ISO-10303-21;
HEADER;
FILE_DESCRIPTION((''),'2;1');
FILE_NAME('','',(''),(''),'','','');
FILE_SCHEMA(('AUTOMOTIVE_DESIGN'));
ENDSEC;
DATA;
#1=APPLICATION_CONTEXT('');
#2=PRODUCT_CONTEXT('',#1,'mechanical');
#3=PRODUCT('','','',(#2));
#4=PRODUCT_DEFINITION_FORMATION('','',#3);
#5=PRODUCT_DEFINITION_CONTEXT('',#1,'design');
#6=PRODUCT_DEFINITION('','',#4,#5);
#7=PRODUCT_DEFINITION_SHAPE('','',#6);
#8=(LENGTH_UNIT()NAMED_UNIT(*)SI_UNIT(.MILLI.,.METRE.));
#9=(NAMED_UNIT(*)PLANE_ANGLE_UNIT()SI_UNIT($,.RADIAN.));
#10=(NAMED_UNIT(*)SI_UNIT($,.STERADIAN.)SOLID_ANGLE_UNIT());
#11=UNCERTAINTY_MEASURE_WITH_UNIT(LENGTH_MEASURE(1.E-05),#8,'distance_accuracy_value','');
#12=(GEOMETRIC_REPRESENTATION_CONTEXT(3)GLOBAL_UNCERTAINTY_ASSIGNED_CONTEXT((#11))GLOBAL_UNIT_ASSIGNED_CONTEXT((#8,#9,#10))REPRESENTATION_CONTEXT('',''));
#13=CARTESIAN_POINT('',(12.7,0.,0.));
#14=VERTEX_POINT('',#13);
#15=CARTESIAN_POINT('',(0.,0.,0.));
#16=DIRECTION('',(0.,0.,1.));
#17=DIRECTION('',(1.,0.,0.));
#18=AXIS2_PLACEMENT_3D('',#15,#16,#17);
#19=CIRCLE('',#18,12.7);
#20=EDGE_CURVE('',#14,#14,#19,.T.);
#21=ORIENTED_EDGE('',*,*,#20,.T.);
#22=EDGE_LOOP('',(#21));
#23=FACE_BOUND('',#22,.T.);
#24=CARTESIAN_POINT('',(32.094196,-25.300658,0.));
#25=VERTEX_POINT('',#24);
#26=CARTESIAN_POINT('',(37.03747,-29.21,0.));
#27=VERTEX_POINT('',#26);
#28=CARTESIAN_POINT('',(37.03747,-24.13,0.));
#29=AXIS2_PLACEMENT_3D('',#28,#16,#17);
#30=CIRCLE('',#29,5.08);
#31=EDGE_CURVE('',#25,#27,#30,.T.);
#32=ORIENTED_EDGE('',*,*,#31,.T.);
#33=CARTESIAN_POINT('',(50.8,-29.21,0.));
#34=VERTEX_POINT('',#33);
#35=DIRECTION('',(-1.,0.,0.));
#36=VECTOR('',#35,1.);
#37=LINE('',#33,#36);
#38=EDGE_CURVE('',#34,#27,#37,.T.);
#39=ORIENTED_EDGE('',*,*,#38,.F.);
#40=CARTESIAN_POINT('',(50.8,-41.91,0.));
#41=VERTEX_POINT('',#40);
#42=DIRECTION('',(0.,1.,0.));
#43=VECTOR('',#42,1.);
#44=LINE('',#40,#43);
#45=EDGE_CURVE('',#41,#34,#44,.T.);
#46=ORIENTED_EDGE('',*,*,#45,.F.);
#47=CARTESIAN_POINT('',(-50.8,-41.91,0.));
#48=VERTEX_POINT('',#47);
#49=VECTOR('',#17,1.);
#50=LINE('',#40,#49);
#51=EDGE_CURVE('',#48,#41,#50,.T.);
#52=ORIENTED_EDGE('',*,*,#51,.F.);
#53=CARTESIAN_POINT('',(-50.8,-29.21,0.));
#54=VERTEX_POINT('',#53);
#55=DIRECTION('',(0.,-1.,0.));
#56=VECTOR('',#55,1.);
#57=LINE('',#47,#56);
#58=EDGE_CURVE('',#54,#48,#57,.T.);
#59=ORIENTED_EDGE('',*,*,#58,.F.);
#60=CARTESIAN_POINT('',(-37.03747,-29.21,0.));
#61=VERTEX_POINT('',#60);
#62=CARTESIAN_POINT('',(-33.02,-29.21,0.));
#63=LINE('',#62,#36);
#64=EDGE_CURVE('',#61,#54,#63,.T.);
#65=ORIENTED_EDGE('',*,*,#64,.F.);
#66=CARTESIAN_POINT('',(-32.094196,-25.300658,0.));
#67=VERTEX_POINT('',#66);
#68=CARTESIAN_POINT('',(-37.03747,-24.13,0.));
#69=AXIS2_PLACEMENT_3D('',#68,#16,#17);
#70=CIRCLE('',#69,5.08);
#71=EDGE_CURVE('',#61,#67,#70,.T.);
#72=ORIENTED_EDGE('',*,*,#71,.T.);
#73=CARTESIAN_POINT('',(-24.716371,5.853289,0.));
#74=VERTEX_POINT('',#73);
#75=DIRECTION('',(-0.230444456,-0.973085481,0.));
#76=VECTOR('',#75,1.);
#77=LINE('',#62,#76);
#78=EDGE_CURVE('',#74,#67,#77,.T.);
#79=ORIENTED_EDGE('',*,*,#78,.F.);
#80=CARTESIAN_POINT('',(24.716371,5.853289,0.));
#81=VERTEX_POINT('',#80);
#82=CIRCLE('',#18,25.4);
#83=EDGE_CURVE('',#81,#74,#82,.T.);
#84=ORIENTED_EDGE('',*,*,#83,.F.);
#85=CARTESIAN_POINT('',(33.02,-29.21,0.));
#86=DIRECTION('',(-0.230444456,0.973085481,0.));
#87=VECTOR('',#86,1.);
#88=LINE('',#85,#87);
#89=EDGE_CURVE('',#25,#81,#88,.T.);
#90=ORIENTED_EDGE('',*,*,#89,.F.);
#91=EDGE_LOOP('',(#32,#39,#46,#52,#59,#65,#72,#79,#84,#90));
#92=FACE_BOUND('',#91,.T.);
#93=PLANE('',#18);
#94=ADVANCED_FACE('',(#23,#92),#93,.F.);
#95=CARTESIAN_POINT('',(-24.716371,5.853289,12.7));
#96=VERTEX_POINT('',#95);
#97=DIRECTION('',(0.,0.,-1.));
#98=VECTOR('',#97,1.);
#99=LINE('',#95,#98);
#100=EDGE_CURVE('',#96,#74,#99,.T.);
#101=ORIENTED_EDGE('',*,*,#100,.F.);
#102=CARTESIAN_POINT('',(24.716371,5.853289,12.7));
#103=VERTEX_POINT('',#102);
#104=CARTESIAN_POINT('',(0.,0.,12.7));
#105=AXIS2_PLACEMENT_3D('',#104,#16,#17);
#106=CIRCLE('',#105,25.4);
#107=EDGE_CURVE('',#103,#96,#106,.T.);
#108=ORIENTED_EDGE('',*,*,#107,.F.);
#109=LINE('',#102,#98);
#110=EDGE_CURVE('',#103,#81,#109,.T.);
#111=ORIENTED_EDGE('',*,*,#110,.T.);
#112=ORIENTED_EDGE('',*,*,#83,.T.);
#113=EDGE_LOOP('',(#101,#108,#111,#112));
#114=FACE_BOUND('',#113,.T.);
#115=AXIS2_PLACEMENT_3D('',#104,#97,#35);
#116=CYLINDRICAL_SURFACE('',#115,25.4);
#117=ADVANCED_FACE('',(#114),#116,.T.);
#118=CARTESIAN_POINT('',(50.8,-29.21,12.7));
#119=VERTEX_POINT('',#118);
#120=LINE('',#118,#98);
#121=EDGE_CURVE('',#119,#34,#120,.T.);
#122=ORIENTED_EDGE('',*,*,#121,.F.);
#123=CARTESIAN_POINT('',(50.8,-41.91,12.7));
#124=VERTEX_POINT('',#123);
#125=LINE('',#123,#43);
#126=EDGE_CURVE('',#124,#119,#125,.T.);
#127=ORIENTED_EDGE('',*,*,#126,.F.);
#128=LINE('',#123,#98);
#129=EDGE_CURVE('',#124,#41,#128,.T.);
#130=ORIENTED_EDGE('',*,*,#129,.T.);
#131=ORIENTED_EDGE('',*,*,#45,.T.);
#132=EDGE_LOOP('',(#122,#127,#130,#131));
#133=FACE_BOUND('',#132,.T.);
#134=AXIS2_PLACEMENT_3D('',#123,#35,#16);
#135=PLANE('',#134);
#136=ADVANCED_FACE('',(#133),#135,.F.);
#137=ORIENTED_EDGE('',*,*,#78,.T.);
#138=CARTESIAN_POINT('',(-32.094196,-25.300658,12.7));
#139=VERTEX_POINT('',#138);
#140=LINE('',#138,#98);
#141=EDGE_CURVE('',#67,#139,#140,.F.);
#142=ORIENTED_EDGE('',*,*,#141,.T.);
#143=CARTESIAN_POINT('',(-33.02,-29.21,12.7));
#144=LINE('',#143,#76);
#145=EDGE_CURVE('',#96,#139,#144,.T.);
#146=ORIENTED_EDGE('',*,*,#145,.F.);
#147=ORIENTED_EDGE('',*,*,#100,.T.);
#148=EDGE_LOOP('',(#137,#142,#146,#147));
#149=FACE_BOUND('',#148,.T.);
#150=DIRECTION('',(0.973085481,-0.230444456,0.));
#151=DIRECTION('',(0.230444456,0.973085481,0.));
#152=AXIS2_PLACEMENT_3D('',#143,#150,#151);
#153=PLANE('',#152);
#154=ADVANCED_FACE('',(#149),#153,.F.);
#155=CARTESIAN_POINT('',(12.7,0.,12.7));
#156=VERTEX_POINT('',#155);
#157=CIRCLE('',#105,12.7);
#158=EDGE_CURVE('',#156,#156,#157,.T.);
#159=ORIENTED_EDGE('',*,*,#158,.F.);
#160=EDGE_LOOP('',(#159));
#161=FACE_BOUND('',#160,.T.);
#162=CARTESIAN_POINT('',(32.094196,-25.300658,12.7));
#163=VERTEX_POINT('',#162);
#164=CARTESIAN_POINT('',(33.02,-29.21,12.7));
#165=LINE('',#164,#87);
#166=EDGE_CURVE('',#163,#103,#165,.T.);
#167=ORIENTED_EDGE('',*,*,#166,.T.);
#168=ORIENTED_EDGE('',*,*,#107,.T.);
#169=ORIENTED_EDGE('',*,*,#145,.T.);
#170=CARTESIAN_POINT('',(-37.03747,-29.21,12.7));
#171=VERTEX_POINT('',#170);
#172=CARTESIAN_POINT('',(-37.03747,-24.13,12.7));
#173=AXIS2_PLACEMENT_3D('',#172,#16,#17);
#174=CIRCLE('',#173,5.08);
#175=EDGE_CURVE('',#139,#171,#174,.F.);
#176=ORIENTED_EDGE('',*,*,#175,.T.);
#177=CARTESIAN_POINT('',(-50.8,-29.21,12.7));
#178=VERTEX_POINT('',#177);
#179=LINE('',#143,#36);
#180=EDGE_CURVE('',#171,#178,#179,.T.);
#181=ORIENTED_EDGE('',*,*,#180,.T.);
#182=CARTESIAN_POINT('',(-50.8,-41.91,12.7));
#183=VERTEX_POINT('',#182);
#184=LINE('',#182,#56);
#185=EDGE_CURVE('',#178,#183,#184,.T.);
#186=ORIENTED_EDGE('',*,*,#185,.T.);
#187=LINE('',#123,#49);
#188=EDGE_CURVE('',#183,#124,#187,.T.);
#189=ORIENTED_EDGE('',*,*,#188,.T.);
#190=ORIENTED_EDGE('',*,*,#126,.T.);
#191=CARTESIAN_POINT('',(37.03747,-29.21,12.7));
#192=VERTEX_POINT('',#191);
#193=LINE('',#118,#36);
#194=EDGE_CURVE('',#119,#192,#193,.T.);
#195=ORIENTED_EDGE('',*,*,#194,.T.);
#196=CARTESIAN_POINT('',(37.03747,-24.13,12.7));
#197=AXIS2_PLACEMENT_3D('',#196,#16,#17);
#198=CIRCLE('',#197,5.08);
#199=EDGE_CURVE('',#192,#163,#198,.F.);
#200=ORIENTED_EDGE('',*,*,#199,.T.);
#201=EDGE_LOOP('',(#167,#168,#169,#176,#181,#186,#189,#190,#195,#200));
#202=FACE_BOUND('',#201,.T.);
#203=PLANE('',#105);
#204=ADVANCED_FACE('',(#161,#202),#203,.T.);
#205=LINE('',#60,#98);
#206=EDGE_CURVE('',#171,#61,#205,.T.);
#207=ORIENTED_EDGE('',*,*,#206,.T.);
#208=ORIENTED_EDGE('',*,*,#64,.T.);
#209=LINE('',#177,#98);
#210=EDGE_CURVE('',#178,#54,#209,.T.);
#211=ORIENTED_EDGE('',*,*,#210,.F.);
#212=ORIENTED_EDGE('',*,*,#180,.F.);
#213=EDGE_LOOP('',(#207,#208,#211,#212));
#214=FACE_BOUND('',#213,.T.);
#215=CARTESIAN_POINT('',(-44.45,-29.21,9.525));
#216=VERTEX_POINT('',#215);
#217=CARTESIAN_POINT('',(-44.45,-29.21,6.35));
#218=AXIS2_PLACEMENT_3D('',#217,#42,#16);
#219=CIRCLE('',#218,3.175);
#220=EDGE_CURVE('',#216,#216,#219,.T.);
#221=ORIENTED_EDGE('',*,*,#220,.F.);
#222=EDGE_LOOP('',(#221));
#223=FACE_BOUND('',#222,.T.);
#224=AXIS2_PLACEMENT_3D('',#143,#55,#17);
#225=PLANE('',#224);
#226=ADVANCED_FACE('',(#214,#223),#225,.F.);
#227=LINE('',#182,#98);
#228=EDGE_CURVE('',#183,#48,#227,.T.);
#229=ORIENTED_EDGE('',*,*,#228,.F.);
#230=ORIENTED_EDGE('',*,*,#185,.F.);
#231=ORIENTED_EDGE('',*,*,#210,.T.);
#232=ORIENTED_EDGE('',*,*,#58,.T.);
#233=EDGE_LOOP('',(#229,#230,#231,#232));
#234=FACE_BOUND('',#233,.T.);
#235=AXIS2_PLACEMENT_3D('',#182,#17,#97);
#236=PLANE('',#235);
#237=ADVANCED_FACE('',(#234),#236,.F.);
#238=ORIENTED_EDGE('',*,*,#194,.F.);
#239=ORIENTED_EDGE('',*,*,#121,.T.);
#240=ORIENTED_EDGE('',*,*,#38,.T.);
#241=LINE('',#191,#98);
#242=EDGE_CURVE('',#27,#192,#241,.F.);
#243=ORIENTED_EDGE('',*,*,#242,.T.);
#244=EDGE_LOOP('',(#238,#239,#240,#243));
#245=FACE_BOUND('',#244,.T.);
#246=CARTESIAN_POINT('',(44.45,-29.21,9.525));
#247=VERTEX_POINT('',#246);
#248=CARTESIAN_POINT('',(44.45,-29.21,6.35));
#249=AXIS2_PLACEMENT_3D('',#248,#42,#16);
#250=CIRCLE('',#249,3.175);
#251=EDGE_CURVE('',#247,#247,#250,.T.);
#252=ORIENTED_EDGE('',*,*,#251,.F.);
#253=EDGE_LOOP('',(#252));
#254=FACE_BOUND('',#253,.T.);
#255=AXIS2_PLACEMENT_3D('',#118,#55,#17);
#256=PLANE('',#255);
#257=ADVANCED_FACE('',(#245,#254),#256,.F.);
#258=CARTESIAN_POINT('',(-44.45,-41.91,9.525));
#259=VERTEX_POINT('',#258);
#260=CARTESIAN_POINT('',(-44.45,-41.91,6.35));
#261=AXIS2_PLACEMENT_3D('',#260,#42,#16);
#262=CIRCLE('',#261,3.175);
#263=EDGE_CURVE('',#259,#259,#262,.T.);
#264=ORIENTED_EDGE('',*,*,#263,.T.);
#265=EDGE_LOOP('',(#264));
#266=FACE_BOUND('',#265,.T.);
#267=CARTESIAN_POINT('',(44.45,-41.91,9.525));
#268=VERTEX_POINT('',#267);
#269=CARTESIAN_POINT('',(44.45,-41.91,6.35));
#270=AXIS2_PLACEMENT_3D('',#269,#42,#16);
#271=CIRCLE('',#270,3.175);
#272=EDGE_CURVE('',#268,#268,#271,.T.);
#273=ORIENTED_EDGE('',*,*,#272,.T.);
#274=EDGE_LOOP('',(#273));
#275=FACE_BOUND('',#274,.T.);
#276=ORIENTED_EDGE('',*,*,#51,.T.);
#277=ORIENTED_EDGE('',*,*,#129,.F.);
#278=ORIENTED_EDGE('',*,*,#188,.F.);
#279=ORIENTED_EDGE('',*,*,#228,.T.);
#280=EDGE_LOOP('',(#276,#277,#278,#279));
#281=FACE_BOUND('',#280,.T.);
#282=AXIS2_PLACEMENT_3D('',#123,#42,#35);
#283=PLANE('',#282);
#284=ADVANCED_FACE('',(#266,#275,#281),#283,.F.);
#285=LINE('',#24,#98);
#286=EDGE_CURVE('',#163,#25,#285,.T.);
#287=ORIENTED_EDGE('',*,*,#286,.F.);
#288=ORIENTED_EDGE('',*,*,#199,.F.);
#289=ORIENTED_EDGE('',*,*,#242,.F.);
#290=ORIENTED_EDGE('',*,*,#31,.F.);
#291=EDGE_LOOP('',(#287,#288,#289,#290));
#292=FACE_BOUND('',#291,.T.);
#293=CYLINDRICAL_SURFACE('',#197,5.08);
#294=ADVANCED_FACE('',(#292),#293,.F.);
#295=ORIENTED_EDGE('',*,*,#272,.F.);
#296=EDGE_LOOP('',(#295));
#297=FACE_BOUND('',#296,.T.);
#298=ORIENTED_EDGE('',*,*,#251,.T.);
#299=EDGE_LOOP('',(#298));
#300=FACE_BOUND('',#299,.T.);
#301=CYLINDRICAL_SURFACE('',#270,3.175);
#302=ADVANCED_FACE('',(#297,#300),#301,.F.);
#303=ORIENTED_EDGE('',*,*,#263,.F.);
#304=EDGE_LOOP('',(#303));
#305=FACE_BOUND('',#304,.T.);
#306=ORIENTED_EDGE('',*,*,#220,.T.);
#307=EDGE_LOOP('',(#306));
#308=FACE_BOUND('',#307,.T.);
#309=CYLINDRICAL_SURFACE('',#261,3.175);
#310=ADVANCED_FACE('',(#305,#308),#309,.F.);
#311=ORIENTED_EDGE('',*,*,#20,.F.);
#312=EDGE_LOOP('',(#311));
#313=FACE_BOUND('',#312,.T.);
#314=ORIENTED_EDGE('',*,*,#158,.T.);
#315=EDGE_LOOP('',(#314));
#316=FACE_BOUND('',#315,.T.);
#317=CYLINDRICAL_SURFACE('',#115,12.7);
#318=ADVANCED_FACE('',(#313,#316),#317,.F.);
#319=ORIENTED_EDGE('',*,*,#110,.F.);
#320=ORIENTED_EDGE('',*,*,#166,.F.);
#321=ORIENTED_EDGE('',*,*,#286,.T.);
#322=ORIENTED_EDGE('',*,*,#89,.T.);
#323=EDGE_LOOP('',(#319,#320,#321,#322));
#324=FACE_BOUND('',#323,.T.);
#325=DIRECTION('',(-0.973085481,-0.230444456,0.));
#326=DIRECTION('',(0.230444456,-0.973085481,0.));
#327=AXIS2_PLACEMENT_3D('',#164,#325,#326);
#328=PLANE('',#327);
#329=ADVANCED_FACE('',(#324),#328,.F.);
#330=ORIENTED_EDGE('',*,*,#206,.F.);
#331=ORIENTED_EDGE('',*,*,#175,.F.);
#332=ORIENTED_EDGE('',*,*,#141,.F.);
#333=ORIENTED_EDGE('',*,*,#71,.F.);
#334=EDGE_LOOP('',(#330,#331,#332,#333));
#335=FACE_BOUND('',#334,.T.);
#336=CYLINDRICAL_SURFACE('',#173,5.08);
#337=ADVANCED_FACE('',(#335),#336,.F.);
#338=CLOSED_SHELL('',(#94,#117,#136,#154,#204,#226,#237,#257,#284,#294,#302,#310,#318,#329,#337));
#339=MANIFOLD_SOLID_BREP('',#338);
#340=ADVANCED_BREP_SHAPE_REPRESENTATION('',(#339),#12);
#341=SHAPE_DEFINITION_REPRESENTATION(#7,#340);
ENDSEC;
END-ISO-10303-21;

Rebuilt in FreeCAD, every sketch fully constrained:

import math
import FreeCAD as App
import Part
import Sketcher

V = App.Vector
Q = App.Units.Quantity


def edges_at(feature, points):
    """Names of the edges that pass closest to the given points."""
    edges = feature.Shape.Edges
    near = lambda p: min(range(len(edges)), key=lambda i: edges[i].distToShape(Part.Vertex(*p))[0])
    return sorted({f"Edge{near(p) + 1}" for p in points})

doc = App.newDocument("Part")
body = doc.addObject("PartDesign::Body", "Body")

# Sketch on XY plane
sketch1 = body.newObject("Sketcher::SketchObject", "Sketch")
sketch1.AttachmentSupport = (doc.getObject("XY_Plane"), [""])
sketch1.MapMode = "FlatFace"
sketch1.addGeometry(Part.LineSegment(V(-50.8, -41.91, 0), V(50.8, -41.91, 0)), False)
sketch1.addGeometry(Part.LineSegment(V(50.8, -41.91, 0), V(50.8, -29.21, 0)), False)
sketch1.addGeometry(Part.LineSegment(V(50.8, -29.21, 0), V(33.02, -29.21, 0)), False)
sketch1.addGeometry(Part.LineSegment(V(33.02, -29.21, 0), V(24.716371, 5.853289, 0)), False)
sketch1.addGeometry(Part.ArcOfCircle(Part.Circle(V(0, 0, 0), V(0, 0, 1), 25.4), math.radians(13.32324), math.radians(166.67676)), False)
sketch1.addGeometry(Part.LineSegment(V(-24.716371, 5.853289, 0), V(-33.02, -29.21, 0)), False)
sketch1.addGeometry(Part.LineSegment(V(-33.02, -29.21, 0), V(-50.8, -29.21, 0)), False)
sketch1.addGeometry(Part.LineSegment(V(-50.8, -29.21, 0), V(-50.8, -41.91, 0)), False)
sketch1.addGeometry(Part.Circle(V(0, 0, 0), V(0, 0, 1), 12.7), False)
sketch1.addConstraint(Sketcher.Constraint("Coincident", 0, 2, 1, 1))
sketch1.addConstraint(Sketcher.Constraint("Coincident", 1, 2, 2, 1))
sketch1.addConstraint(Sketcher.Constraint("Coincident", 2, 2, 3, 1))
sketch1.addConstraint(Sketcher.Constraint("Tangent", 3, 2, 4, 1))
sketch1.addConstraint(Sketcher.Constraint("Tangent", 4, 2, 5, 1))
sketch1.addConstraint(Sketcher.Constraint("Coincident", 5, 2, 6, 1))
sketch1.addConstraint(Sketcher.Constraint("Coincident", 6, 2, 7, 1))
sketch1.addConstraint(Sketcher.Constraint("Coincident", 7, 2, 0, 1))
sketch1.addConstraint(Sketcher.Constraint("Horizontal", 0))
sketch1.addConstraint(Sketcher.Constraint("Vertical", 1))
sketch1.addConstraint(Sketcher.Constraint("Horizontal", 2))
sketch1.addConstraint(Sketcher.Constraint("Horizontal", 6))
sketch1.addConstraint(Sketcher.Constraint("Vertical", 7))
sketch1.addConstraint(Sketcher.Constraint("Coincident", 4, 3, -1, 1))
sketch1.addConstraint(Sketcher.Constraint("Coincident", 8, 3, -1, 1))
sketch1.addConstraint(Sketcher.Constraint("Symmetric", 2, 2, 5, 2, -2))
sketch1.addConstraint(Sketcher.Constraint("Equal", 2, 6))
sketch1.addConstraint(Sketcher.Constraint("Diameter", 8, Q("1 in")))
sketch1.addConstraint(Sketcher.Constraint("Radius", 4, Q("1 in")))
sketch1.addConstraint(Sketcher.Constraint("DistanceX", 0, 1, 0, 2, Q("4 in")))
sketch1.addConstraint(Sketcher.Constraint("DistanceX", 2, 2, 2, 1, Q("0.7 in")))
sketch1.addConstraint(Sketcher.Constraint("DistanceY", 1, 1, 1, 2, Q("0.5 in")))
sketch1.addConstraint(Sketcher.Constraint("DistanceY", 0, 2, -1, 1, Q("1.65 in")))
pad1 = body.newObject("PartDesign::Pad", "Pad")
pad1.Profile = sketch1
pad1.Length = Q("0.5 in")

# Sketch on XZ plane
sketch2 = body.newObject("Sketcher::SketchObject", "Sketch001")
sketch2.AttachmentSupport = (doc.getObject("XZ_Plane"), [""])
sketch2.MapMode = "FlatFace"
sketch2.AttachmentOffset = App.Placement(V(0, 0, 1.15 * 25.4), App.Rotation())
sketch2.addGeometry(Part.Circle(V(-44.45, 6.35, 0), V(0, 0, 1), 3.175), False)
sketch2.addGeometry(Part.Circle(V(44.45, 6.35, 0), V(0, 0, 1), 3.175), False)
sketch2.addConstraint(Sketcher.Constraint("Equal", 0, 1))
sketch2.addConstraint(Sketcher.Constraint("Symmetric", 0, 3, 1, 3, -2))
sketch2.addConstraint(Sketcher.Constraint("Diameter", 0, Q("0.25 in")))
sketch2.addConstraint(Sketcher.Constraint("DistanceX", 0, 3, 1, 3, Q("3.5 in")))
sketch2.addConstraint(Sketcher.Constraint("DistanceY", -1, 1, 0, 3, Q("0.25 in")))
pocket1 = body.newObject("PartDesign::Pocket", "Pocket")
pocket1.Profile = sketch2
pocket1.Type = "ThroughAll"
pocket1.Reversed = True
doc.recompute()

fillet = body.newObject("PartDesign::Fillet", "Fillet")
fillet.Base = (pocket1, edges_at(pocket1, [(-33.02, -29.21, 6.35), (33.02, -29.21, 6.35)]))
fillet.Radius = Q("0.2 in")

doc.recompute()
